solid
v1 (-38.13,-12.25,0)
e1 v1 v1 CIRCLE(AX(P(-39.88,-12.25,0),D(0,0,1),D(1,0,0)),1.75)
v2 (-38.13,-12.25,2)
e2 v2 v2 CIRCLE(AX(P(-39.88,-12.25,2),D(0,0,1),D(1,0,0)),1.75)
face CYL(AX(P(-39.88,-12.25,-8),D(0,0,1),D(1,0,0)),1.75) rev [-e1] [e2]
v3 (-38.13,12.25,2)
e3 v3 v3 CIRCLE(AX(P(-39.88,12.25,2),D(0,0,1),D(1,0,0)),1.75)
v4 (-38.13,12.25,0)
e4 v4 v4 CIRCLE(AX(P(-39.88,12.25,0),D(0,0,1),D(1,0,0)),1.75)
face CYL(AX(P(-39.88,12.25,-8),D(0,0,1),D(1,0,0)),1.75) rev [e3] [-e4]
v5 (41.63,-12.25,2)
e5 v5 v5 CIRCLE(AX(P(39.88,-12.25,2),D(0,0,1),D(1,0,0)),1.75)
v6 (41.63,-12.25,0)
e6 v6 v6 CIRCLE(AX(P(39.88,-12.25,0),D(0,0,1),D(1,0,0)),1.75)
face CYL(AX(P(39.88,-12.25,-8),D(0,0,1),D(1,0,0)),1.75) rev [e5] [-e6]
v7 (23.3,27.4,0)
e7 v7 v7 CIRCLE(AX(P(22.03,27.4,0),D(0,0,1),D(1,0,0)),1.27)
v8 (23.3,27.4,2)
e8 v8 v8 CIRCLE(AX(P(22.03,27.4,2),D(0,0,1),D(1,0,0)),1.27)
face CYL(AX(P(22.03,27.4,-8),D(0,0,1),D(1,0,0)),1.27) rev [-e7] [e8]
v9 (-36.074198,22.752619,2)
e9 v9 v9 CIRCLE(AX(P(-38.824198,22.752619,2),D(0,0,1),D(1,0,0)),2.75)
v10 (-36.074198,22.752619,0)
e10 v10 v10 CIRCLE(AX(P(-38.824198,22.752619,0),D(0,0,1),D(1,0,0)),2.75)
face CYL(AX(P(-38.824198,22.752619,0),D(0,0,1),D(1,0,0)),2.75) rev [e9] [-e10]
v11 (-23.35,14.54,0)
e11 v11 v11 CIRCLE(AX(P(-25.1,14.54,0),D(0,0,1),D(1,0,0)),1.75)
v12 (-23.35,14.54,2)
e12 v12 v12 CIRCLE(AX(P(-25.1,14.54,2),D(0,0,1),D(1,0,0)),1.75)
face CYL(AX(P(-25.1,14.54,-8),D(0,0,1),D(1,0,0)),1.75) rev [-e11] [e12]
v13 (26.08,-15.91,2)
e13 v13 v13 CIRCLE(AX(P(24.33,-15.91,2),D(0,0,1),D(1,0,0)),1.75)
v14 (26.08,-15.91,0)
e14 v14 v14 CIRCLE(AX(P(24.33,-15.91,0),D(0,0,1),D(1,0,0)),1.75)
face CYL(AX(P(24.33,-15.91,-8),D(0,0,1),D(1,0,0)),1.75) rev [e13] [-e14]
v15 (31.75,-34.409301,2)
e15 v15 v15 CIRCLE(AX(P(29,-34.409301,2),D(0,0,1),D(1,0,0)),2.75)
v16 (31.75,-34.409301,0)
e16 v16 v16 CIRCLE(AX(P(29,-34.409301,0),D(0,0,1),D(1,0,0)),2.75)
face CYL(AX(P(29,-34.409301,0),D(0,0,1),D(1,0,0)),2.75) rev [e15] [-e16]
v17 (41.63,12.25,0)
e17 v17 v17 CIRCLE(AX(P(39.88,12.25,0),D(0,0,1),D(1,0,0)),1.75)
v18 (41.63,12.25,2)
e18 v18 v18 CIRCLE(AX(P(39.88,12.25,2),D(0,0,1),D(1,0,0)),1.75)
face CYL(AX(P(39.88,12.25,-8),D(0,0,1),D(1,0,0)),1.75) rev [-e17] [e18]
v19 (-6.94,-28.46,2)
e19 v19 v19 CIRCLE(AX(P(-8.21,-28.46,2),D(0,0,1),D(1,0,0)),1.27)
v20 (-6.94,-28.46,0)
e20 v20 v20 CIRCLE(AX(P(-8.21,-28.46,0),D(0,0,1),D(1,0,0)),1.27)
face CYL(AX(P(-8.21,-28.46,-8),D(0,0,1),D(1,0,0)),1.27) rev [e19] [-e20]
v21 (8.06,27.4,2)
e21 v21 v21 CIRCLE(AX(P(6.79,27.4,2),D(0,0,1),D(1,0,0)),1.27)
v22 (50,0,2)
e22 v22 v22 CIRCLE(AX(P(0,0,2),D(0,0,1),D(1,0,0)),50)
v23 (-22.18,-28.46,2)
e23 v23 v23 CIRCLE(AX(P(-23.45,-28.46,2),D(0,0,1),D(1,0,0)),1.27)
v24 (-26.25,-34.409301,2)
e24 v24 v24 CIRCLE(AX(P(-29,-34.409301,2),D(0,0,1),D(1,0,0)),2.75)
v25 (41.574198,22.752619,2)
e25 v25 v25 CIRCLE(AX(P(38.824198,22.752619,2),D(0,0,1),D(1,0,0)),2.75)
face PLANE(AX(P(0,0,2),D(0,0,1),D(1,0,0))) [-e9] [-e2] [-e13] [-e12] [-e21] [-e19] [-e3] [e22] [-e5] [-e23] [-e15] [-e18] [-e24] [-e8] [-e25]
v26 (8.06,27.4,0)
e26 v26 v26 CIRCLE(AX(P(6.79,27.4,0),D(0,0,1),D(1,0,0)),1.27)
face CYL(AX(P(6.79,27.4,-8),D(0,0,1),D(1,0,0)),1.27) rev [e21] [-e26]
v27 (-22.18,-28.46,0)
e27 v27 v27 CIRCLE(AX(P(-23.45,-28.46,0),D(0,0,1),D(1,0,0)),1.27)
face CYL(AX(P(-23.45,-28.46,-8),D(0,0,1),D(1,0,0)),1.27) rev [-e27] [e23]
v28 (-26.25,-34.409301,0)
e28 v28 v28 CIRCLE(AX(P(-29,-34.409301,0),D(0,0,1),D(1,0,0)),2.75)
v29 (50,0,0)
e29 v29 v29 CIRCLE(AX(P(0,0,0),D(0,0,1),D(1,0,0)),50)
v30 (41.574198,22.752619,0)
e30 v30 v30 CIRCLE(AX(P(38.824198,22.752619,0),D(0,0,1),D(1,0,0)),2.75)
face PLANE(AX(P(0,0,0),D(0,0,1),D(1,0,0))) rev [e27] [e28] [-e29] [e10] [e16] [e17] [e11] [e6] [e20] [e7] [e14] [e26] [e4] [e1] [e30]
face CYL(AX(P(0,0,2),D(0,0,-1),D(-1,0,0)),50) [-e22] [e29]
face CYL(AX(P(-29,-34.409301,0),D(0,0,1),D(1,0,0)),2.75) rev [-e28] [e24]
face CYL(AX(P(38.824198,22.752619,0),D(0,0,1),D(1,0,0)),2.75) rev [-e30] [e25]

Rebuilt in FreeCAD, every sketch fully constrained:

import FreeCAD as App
import Part
import Sketcher

V = App.Vector

doc = App.newDocument("Part")
body = doc.addObject("PartDesign::Body", "Body")

sketch1 = body.newObject("Sketcher::SketchObject", "Sketch")
sketch1.AttachmentSupport = (doc.getObject("XY_Plane"), [""])
sketch1.MapMode = "FlatFace"
sketch1.addGeometry(Part.Circle(V(0, 0, 0), V(0, 0, 1), 50), False)
sketch1.addConstraint(Sketcher.Constraint("Coincident", 0, 3, -1, 1))
sketch1.addConstraint(Sketcher.Constraint("Diameter", 0, 100.0))
pad1 = body.newObject("PartDesign::Pad", "Pad")
pad1.Profile = sketch1
pad1.Length = 2

sketch2 = body.newObject("Sketcher::SketchObject", "Sketch001")
sketch2.AttachmentSupport = (doc.getObject("XY_Plane"), [""])
sketch2.MapMode = "FlatFace"
sketch2.AttachmentOffset = App.Placement(V(0, 0, 2), App.Rotation())
sketch2.addGeometry(Part.Circle(V(-29, -34.409301, 0), V(0, 0, 1), 2.75), False)
sketch2.addGeometry(Part.Circle(V(29, -34.409301, 0), V(0, 0, 1), 2.75), False)
sketch2.addGeometry(Part.Circle(V(-38.824198, 22.752619, 0), V(0, 0, 1), 2.75), False)
sketch2.addGeometry(Part.Circle(V(38.824198, 22.752619, 0), V(0, 0, 1), 2.75), False)
sketch2.addConstraint(Sketcher.Constraint("Equal", 0, 1))
sketch2.addConstraint(Sketcher.Constraint("Equal", 1, 2))
sketch2.addConstraint(Sketcher.Constraint("Equal", 2, 3))
sketch2.addConstraint(Sketcher.Constraint("Symmetric", 0, 3, 1, 3, -2))
sketch2.addConstraint(Sketcher.Constraint("Symmetric", 2, 3, 3, 3, -2))
sketch2.addConstraint(Sketcher.Constraint("Diameter", 0, 5.5))
sketch2.addConstraint(Sketcher.Constraint("DistanceX", 0, 3, -1, 1, 29.0))
sketch2.addConstraint(Sketcher.Constraint("DistanceY", 0, 3, -1, 1, 34.409301))
sketch2.addConstraint(Sketcher.Constraint("DistanceY", -1, 1, 2, 3, 22.752619))
sketch2.addConstraint(Sketcher.Constraint("DistanceX", 2, 3, -1, 1, 38.824198))
pocket1 = body.newObject("PartDesign::Pocket", "Pocket")
pocket1.Profile = sketch2
pocket1.Length = 2

sketch3 = body.newObject("Sketcher::SketchObject", "Sketch002")
sketch3.AttachmentSupport = (doc.getObject("XY_Plane"), [""])
sketch3.MapMode = "FlatFace"
sketch3.AttachmentOffset = App.Placement(V(0, 0, 2), App.Rotation())
sketch3.addGeometry(Part.Circle(V(-25.1, 14.54, 0), V(0, 0, 1), 1.75), False)
sketch3.addGeometry(Part.Circle(V(24.33, -15.91, 0), V(0, 0, 1), 1.75), False)
sketch3.addGeometry(Part.Circle(V(-39.88, -12.25, 0), V(0, 0, 1), 1.75), False)
sketch3.addGeometry(Part.Circle(V(-39.88, 12.25, 0), V(0, 0, 1), 1.75), False)
sketch3.addGeometry(Part.Circle(V(39.88, 12.25, 0), V(0, 0, 1), 1.75), False)
sketch3.addGeometry(Part.Circle(V(39.88, -12.25, 0), V(0, 0, 1), 1.75), False)
sketch3.addGeometry(Part.Circle(V(6.79, 27.4, 0), V(0, 0, 1), 1.27), False)
sketch3.addGeometry(Part.Circle(V(22.03, 27.4, 0), V(0, 0, 1), 1.27), False)
sketch3.addGeometry(Part.Circle(V(-8.21, -28.46, 0), V(0, 0, 1), 1.27), False)
sketch3.addGeometry(Part.Circle(V(-23.45, -28.46, 0), V(0, 0, 1), 1.27), False)
sketch3.addConstraint(Sketcher.Constraint("Equal", 0, 1))
sketch3.addConstraint(Sketcher.Constraint("Equal", 1, 2))
sketch3.addConstraint(Sketcher.Constraint("Equal", 2, 3))
sketch3.addConstraint(Sketcher.Constraint("Equal", 3, 4))
sketch3.addConstraint(Sketcher.Constraint("Equal", 4, 5))
sketch3.addConstraint(Sketcher.Constraint("Equal", 6, 7))
sketch3.addConstraint(Sketcher.Constraint("Equal", 7, 8))
sketch3.addConstraint(Sketcher.Constraint("Equal", 8, 9))
sketch3.addConstraint(Sketcher.Constraint("Symmetric", 2, 3, 4, 3, -1, 1))
sketch3.addConstraint(Sketcher.Constraint("Symmetric", 3, 3, 5, 3, -1, 1))
sketch3.addConstraint(Sketcher.Constraint("Symmetric", 3, 3, 4, 3, -2))
sketch3.addConstraint(Sketcher.Constraint("Horizontal", 6, 3, 7, 3))
sketch3.addConstraint(Sketcher.Constraint("Horizontal", 8, 3, 9, 3))
sketch3.addConstraint(Sketcher.Constraint("Diameter", 0, 3.5))
sketch3.addConstraint(Sketcher.Constraint("Diameter", 6, 2.54))
sketch3.addConstraint(Sketcher.Constraint("DistanceY", 8, 3, 0, 3, 43.0))
sketch3.addConstraint(Sketcher.Constraint("DistanceX", 0, 3, -1, 1, 25.1))
sketch3.addConstraint(Sketcher.Constraint("DistanceY", -1, 1, 6, 3, 27.4))
sketch3.addConstraint(Sketcher.Constraint("DistanceY", 2, 3, 3, 3, 24.5))
sketch3.addConstraint(Sketcher.Constraint("DistanceX", 7, 3, 1, 3, 2.3))
sketch3.addConstraint(Sketcher.Constraint("DistanceY", -1, 1, 0, 3, 14.54))
sketch3.addConstraint(Sketcher.Constraint("DistanceX", -1, 1, 1, 3, 24.33))
sketch3.addConstraint(Sketcher.Constraint("DistanceY", 1, 3, -1, 1, 15.91))
sketch3.addConstraint(Sketcher.Constraint("DistanceX", 2, 3, -1, 1, 39.88))
sketch3.addConstraint(Sketcher.Constraint("DistanceX", -1, 1, 6, 3, 6.79))
sketch3.addConstraint(Sketcher.Constraint("DistanceX", 8, 3, -1, 1, 8.21))
sketch3.addConstraint(Sketcher.Constraint("DistanceX", 9, 3, -1, 1, 23.45))
pocket2 = body.newObject("PartDesign::Pocket", "Pocket001")
pocket2.Profile = sketch3
pocket2.Length = 10

doc.recompute()
